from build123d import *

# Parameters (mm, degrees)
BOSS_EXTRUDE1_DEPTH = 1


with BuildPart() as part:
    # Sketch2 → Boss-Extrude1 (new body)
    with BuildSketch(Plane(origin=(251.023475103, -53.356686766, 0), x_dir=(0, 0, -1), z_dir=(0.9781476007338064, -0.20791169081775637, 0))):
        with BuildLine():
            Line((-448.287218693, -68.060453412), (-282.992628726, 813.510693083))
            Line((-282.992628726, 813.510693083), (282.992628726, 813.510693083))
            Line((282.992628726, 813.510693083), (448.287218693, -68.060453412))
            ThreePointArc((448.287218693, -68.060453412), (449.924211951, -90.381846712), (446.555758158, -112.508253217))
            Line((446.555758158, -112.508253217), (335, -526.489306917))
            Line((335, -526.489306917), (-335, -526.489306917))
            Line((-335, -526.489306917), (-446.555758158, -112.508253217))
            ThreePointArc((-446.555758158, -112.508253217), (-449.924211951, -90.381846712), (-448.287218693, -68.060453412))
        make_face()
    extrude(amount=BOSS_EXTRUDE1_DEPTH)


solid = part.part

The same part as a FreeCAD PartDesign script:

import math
import FreeCAD as App
import Part
import Sketcher

V = App.Vector

doc = App.newDocument("Part")
body = doc.addObject("PartDesign::Body", "Body")

# Sketch on an angled plane
sketch1 = doc.addObject("Sketcher::SketchObject", "Sketch")
body.addObject(sketch1)
sketch1.Placement = App.Placement(V(251.023475, -53.356687, 0), App.Rotation(V(0, 0, -1), V(0.207911691, 0.978147601, 0), V(0.978147601, -0.207911691, 0), "ZXY"))
sketch1.addGeometry(Part.LineSegment(V(-282.992629, 813.510694, 0), V(-448.287219, -68.060453, 0)), False)
sketch1.addGeometry(Part.ArcOfCircle(Part.Circle(V(-350, -86.489307, 0), V(0, 0, 1), 100), math.radians(169.380345), math.radians(195.081305)), False)
sketch1.addGeometry(Part.LineSegment(V(-446.555758, -112.508253, 0), V(-335, -526.489307, 0)), False)
sketch1.addGeometry(Part.LineSegment(V(-335, -526.489307, 0), V(335, -526.489307, 0)), False)
sketch1.addGeometry(Part.LineSegment(V(335, -526.489307, 0), V(446.555758, -112.508253, 0)), False)
sketch1.addGeometry(Part.ArcOfCircle(Part.Circle(V(350, -86.489307, 0), V(0, 0, 1), 100), math.radians(-15.081305), math.radians(10.619655)), False)
sketch1.addGeometry(Part.LineSegment(V(448.287219, -68.060453, 0), V(282.992629, 813.510694, 0)), False)
sketch1.addGeometry(Part.LineSegment(V(282.992629, 813.510694, 0), V(-282.992629, 813.510694, 0)), False)
sketch1.addConstraint(Sketcher.Constraint("Tangent", 0, 2, 1, 1))
sketch1.addConstraint(Sketcher.Constraint("Tangent", 1, 2, 2, 1))
sketch1.addConstraint(Sketcher.Constraint("Coincident", 2, 2, 3, 1))
sketch1.addConstraint(Sketcher.Constraint("Coincident", 3, 2, 4, 1))
sketch1.addConstraint(Sketcher.Constraint("Tangent", 4, 2, 5, 1))
sketch1.addConstraint(Sketcher.Constraint("Tangent", 5, 2, 6, 1))
sketch1.addConstraint(Sketcher.Constraint("Coincident", 6, 2, 7, 1))
sketch1.addConstraint(Sketcher.Constraint("Coincident", 7, 2, 0, 1))
sketch1.addConstraint(Sketcher.Constraint("Horizontal", 3))
sketch1.addConstraint(Sketcher.Constraint("Horizontal", 7))
sketch1.addConstraint(Sketcher.Constraint("Equal", 1, 5))
sketch1.addConstraint(Sketcher.Constraint("Symmetric", 1, 3, 5, 3, -2))
sketch1.addConstraint(Sketcher.Constraint("Horizontal", 1, 2, 4, 2))
sketch1.addConstraint(Sketcher.Constraint("Equal", 0, 6))
sketch1.addConstraint(Sketcher.Constraint("Radius", 1, 100.0))
sketch1.addConstraint(Sketcher.Constraint("DistanceX", 3, 1, 3, 2, 670.0))
sketch1.addConstraint(Sketcher.Constraint("DistanceX", 1, 3, -1, 1, 350.0))
sketch1.addConstraint(Sketcher.Constraint("DistanceY", 2, 2, 1, 3, 440.0))
sketch1.addConstraint(Sketcher.Constraint("DistanceY", 5, 3, 6, 2, 900.000001))
sketch1.addConstraint(Sketcher.Constraint("Distance", 0, 896.933659))
sketch1.addConstraint(Sketcher.Constraint("DistanceY", 1, 3, -1, 1, 86.489307))
pad1 = doc.addObject("PartDesign::Pad", "Pad")
body.addObject(pad1)
pad1.Profile = sketch1
pad1.Length = 1

doc.recompute()
